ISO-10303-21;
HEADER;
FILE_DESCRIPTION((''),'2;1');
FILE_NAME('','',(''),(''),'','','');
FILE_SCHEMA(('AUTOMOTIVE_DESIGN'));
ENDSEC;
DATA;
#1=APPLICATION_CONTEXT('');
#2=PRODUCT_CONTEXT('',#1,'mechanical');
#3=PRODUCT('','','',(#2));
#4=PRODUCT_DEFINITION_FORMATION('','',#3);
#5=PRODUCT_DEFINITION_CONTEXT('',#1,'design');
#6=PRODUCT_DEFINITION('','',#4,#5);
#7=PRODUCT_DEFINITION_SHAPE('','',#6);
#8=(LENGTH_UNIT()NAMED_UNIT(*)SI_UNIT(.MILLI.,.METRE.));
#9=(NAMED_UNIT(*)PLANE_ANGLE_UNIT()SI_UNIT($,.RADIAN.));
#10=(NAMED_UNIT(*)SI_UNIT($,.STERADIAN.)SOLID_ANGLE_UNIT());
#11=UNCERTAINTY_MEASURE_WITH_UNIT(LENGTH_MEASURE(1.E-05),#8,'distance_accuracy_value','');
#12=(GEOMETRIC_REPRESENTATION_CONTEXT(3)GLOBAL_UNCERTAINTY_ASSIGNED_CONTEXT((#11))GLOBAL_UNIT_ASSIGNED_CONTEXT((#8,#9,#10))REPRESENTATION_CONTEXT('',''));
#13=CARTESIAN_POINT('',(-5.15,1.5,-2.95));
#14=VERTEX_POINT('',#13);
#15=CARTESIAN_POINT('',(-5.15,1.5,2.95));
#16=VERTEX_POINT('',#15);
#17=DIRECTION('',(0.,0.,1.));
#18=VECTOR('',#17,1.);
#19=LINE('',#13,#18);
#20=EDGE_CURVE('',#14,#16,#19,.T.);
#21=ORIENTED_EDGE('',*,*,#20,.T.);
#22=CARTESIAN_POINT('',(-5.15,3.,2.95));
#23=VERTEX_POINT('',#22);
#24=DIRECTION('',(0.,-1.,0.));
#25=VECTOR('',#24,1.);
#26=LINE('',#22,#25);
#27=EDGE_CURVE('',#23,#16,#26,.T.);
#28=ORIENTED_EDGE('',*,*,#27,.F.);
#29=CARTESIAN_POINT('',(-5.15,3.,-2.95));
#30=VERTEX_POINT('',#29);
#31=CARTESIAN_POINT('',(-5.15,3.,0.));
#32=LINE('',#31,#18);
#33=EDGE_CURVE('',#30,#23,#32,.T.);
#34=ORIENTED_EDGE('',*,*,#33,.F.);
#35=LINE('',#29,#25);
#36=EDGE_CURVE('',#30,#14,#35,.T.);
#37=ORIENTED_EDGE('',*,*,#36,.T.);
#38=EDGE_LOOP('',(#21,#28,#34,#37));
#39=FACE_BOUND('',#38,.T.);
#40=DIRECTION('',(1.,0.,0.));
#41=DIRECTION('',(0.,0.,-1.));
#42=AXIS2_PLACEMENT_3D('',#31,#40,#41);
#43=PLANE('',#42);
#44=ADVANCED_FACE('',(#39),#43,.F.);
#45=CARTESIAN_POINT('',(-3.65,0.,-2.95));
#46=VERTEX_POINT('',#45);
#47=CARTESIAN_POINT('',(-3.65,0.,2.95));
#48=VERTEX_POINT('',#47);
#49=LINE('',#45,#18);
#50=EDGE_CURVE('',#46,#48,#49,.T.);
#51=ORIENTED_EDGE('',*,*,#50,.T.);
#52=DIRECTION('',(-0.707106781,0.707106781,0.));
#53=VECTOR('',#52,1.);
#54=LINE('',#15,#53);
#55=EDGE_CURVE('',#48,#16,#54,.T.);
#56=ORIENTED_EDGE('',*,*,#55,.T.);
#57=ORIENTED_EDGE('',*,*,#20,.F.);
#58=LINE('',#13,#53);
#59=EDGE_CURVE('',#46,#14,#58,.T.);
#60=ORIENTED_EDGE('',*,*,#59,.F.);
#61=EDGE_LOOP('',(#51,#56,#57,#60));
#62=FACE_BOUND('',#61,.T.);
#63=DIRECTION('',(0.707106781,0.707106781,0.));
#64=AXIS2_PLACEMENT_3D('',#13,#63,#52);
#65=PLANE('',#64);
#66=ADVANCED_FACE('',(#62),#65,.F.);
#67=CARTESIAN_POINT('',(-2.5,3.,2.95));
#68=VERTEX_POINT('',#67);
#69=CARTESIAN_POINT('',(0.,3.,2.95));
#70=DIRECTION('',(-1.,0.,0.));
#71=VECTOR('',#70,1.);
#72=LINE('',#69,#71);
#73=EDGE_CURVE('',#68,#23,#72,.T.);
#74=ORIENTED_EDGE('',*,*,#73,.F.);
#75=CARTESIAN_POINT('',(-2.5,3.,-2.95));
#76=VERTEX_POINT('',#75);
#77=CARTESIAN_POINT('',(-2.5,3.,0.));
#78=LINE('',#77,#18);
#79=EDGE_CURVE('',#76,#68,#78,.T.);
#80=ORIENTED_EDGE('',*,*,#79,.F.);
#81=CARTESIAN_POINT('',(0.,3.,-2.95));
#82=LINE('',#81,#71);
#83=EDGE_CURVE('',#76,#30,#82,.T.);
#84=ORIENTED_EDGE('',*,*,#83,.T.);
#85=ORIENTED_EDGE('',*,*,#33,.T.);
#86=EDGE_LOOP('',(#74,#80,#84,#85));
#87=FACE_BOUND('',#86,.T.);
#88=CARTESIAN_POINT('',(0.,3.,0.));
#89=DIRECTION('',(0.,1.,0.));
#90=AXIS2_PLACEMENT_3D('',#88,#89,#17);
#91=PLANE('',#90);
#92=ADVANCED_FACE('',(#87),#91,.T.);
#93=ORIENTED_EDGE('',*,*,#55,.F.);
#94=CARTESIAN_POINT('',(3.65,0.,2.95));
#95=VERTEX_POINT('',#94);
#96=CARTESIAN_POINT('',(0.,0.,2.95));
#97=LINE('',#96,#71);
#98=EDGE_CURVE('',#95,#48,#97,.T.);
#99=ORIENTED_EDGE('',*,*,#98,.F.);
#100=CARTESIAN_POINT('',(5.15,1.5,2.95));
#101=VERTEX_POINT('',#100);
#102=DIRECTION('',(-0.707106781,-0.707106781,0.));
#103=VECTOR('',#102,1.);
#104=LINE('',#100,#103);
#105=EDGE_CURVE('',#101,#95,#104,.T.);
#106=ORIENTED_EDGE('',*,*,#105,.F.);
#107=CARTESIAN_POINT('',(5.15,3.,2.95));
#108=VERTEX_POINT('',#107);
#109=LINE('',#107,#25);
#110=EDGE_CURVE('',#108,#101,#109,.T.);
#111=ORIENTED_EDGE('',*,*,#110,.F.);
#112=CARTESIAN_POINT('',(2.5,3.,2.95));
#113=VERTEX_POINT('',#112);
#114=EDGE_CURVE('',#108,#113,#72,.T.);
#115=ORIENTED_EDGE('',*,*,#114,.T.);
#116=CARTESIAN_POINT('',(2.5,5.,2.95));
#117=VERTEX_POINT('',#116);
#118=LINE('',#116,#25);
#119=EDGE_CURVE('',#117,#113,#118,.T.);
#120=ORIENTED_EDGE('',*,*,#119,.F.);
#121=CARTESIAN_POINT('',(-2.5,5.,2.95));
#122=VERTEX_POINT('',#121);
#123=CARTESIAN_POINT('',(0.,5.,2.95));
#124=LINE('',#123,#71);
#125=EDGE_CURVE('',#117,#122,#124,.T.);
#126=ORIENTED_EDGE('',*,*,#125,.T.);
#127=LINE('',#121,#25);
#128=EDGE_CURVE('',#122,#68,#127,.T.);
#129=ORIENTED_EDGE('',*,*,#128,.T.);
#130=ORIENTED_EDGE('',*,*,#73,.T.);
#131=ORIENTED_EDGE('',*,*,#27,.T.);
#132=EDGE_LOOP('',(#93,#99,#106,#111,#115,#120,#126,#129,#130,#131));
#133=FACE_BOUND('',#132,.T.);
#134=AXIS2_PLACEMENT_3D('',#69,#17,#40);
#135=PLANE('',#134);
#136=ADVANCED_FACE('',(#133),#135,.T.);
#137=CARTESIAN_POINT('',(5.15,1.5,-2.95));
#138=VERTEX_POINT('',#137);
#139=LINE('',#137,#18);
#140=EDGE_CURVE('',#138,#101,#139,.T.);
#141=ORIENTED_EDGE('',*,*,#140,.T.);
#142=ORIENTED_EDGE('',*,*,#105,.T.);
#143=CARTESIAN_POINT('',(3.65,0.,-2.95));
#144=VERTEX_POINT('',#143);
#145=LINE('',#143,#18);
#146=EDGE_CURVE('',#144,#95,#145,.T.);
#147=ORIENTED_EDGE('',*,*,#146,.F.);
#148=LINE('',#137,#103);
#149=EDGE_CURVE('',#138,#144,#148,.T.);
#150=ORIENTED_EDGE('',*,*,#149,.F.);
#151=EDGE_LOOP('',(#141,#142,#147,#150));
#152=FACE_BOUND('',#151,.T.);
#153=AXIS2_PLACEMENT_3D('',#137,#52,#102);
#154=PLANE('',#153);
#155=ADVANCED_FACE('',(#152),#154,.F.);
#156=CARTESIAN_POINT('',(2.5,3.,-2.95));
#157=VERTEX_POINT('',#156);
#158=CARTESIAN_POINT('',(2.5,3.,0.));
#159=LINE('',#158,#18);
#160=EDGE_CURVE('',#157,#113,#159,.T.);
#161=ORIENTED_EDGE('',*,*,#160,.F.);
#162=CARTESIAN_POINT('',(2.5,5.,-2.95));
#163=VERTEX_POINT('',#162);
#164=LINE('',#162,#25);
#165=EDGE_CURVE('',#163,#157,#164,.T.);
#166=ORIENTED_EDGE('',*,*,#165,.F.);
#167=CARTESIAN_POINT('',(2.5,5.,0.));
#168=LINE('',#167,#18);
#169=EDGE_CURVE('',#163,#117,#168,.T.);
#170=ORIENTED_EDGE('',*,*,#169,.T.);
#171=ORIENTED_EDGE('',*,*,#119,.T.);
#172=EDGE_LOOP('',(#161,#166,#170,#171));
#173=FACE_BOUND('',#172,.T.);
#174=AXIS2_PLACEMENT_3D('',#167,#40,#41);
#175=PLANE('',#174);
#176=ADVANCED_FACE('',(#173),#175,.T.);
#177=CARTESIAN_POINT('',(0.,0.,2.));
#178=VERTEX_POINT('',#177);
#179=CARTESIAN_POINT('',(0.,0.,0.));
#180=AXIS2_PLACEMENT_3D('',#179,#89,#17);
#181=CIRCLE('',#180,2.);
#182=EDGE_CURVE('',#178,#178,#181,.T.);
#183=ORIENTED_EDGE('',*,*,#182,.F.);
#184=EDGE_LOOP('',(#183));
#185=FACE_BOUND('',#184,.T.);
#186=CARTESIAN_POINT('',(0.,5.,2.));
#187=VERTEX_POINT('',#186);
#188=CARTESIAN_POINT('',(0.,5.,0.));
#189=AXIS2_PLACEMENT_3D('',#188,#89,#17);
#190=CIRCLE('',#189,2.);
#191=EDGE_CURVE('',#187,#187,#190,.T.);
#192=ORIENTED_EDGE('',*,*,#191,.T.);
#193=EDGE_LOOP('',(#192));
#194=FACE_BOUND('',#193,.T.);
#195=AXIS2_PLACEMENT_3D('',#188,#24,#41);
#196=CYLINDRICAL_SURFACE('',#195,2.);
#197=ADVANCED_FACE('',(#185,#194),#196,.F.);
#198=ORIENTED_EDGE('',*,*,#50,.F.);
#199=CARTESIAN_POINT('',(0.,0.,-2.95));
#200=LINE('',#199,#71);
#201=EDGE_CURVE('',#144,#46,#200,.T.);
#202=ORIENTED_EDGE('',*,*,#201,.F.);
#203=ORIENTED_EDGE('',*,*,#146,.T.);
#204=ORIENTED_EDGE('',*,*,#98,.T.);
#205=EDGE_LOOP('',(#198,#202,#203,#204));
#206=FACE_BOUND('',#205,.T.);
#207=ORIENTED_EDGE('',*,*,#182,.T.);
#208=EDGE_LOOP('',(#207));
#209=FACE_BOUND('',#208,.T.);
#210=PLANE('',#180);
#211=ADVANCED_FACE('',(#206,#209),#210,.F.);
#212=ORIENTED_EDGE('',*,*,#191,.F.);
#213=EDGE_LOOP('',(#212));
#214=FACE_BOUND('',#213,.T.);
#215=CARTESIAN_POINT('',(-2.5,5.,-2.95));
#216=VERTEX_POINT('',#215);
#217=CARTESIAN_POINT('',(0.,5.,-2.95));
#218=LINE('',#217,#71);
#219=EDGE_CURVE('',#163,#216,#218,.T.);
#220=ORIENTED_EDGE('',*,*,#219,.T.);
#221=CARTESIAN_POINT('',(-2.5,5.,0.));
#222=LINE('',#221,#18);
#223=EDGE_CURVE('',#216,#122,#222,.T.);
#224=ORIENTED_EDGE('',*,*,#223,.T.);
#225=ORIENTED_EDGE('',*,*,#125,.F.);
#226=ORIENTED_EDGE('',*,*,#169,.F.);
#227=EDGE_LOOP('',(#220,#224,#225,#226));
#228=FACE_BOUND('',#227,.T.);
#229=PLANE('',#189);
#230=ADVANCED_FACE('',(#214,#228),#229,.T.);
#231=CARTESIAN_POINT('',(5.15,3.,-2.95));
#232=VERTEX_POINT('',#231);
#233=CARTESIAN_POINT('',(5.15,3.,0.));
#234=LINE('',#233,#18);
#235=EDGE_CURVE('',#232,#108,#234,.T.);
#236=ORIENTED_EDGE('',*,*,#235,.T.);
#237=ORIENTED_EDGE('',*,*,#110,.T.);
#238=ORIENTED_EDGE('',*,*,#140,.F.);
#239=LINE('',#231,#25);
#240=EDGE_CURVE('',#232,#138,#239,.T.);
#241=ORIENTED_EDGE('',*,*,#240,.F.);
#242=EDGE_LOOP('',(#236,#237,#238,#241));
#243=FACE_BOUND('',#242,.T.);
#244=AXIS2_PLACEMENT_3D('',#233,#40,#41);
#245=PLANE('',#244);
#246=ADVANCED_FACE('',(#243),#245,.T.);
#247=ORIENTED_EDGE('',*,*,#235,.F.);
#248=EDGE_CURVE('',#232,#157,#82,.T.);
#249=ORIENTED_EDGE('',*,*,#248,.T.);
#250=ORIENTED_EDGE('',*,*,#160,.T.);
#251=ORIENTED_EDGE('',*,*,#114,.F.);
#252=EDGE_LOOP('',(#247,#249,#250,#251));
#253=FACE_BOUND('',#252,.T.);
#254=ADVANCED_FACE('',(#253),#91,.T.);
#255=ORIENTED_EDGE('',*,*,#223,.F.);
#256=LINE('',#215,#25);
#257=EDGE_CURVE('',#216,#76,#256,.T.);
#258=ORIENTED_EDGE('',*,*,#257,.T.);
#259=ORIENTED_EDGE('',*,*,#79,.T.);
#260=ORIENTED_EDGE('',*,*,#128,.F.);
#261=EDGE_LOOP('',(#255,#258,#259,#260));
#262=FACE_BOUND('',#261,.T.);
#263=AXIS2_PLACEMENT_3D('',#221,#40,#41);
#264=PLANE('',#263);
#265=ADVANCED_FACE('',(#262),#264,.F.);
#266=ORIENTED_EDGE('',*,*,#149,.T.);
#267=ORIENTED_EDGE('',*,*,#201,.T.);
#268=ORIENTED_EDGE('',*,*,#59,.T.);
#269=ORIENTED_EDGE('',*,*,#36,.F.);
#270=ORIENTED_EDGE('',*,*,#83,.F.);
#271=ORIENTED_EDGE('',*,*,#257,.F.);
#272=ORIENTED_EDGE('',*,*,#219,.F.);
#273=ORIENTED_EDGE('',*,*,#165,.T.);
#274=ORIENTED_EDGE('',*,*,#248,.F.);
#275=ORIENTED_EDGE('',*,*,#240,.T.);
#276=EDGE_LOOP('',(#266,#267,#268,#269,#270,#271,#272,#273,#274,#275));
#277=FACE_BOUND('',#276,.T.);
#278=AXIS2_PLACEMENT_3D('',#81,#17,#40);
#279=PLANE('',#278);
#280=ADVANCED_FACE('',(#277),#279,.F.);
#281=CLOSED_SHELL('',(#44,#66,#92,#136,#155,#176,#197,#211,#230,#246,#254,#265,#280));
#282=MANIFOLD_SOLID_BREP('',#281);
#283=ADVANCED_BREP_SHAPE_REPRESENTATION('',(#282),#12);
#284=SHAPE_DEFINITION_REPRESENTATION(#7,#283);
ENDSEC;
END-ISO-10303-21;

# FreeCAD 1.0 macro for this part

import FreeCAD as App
import Part
import Sketcher

V = App.Vector
Q = App.Units.Quantity


def add_polygon(sketch, points):
    """Adds a closed chain of lines whose ends are joined by coincident constraints."""
    first, n = sketch.GeometryCount, len(points)
    for a, b in zip(points, points[1:] + points[:1]):
        sketch.addGeometry(Part.LineSegment(App.Vector(*a, 0), App.Vector(*b, 0)), False)
    for i in range(n):
        sketch.addConstraint(Sketcher.Constraint("Coincident", first + i, 2, first + (i + 1) % n, 1))

doc = App.newDocument("Part")
body = doc.addObject("PartDesign::Body", "Body")

sketch1 = body.newObject("Sketcher::SketchObject", "Sketch")
sketch1.AttachmentSupport = (doc.getObject("XZ_Plane"), [""])
sketch1.MapMode = "FlatFace"
add_polygon(sketch1, [(-5.15, -2.95), (-5.15, 2.95), (-2.5, 2.95), (-2.5, -2.95)])
sketch1.addConstraint([
    Sketcher.Constraint("Vertical", 0),
    Sketcher.Constraint("Horizontal", 1),
    Sketcher.Constraint("Vertical", 2),
    Sketcher.Constraint("Horizontal", 3),
    Sketcher.Constraint("DistanceY", 0, 1, 0, 2, Q("5.9 mm")),
    Sketcher.Constraint("DistanceX", 1, 1, 1, 2, Q("2.65 mm")),
    Sketcher.Constraint("DistanceX", 1, 2, -1, 1, Q("2.5 mm")),
    Sketcher.Constraint("DistanceY", -1, 1, 0, 2, Q("2.95 mm")),
])
pad1 = body.newObject("PartDesign::Pad", "Pad")
pad1.Profile = sketch1
pad1.Length = 3
pad1.Reversed = True
body2 = doc.addObject("PartDesign::Body", "Body001")

sketch2 = body2.newObject("Sketcher::SketchObject", "Sketch001")
sketch2.AttachmentSupport = (doc.getObject("XZ_Plane001"), [""])
sketch2.MapMode = "FlatFace"
add_polygon(sketch2, [(2.5, -2.95), (2.5, 2.95), (5.15, 2.95), (5.15, -2.95)])
sketch2.addConstraint([
    Sketcher.Constraint("Vertical", 0),
    Sketcher.Constraint("Horizontal", 1),
    Sketcher.Constraint("Vertical", 2),
    Sketcher.Constraint("Horizontal", 3),
    Sketcher.Constraint("DistanceY", 0, 1, 0, 2, Q("5.9 mm")),
    Sketcher.Constraint("DistanceX", 1, 1, 1, 2, Q("2.65 mm")),
    Sketcher.Constraint("DistanceX", -1, 1, 0, 2, Q("2.5 mm")),
    Sketcher.Constraint("DistanceY", -1, 1, 0, 2, Q("2.95 mm")),
])
pad2 = body2.newObject("PartDesign::Pad", "Pad001")
pad2.Profile = sketch2
pad2.Length = 3
pad2.Reversed = True
body.AllowCompound = True
doc.recompute()

boolean = body.newObject("PartDesign::Boolean", "Boolean")
boolean.Type = "Fuse"
boolean.addObjects([body2])

sketch3 = body.newObject("Sketcher::SketchObject", "Sketch002")
sketch3.AttachmentSupport = (doc.getObject("XZ_Plane"), [""])
sketch3.MapMode = "FlatFace"
add_polygon(sketch3, [(-2.5, -2.95), (-2.5, 2.95), (2.5, 2.95), (2.5, -2.95)])
sketch3.addGeometry(Part.Circle(V(0, 0, 0), V(0, 0, 1), 2), False)
sketch3.addConstraint([
    Sketcher.Constraint("Vertical", 0),
    Sketcher.Constraint("Horizontal", 1),
    Sketcher.Constraint("Vertical", 2),
    Sketcher.Constraint("Horizontal", 3),
    Sketcher.Constraint("Coincident", 4, 3, -1, 1),
    Sketcher.Constraint("Symmetric", 0, 2, 2, 2, -1, 1),
    Sketcher.Constraint("Diameter", 4, Q("4 mm")),
    Sketcher.Constraint("DistanceX", 1, 1, 1, 2, Q("5 mm")),
    Sketcher.Constraint("DistanceY", 0, 1, 0, 2, Q("5.9 mm")),
])
pad3 = body.newObject("PartDesign::Pad", "Pad002")
pad3.Profile = sketch3
pad3.Length = 5
pad3.Reversed = True

sketch4 = body.newObject("Sketcher::SketchObject", "Sketch003")
sketch4.AttachmentSupport = (doc.getObject("XY_Plane"), [""])
sketch4.MapMode = "FlatFace"
sketch4.AttachmentOffset = App.Placement(V(0, 0, 2.95), App.Rotation())
add_polygon(sketch4, [(-3.65, 0), (-5.15, 1.5), (-5.15, 0)])
add_polygon(sketch4, [(5.15, 1.5), (3.65, 0), (5.15, 0)])
sketch4.addConstraint([
    Sketcher.Constraint("Vertical", 1),
    Sketcher.Constraint("Horizontal", 2),
    Sketcher.Constraint("Horizontal", 4),
    Sketcher.Constraint("Vertical", 5),
    Sketcher.Constraint("Symmetric", 2, 2, 3, 2, -1, 1),
    Sketcher.Constraint("Symmetric", 1, 2, 4, 2, -2),
    Sketcher.Constraint("Perpendicular", 0, 3),
    Sketcher.Constraint("Horizontal", 0, 2, 5, 2),
    Sketcher.Constraint("DistanceX", 2, 1, 2, 2, Q("1.5 mm")),
    Sketcher.Constraint("DistanceX", 2, 2, 3, 2, Q("7.3 mm")),
])
pocket1 = body.newObject("PartDesign::Pocket", "Pocket")
pocket1.Profile = sketch4
pocket1.Type = "ThroughAll"

doc.recompute()
